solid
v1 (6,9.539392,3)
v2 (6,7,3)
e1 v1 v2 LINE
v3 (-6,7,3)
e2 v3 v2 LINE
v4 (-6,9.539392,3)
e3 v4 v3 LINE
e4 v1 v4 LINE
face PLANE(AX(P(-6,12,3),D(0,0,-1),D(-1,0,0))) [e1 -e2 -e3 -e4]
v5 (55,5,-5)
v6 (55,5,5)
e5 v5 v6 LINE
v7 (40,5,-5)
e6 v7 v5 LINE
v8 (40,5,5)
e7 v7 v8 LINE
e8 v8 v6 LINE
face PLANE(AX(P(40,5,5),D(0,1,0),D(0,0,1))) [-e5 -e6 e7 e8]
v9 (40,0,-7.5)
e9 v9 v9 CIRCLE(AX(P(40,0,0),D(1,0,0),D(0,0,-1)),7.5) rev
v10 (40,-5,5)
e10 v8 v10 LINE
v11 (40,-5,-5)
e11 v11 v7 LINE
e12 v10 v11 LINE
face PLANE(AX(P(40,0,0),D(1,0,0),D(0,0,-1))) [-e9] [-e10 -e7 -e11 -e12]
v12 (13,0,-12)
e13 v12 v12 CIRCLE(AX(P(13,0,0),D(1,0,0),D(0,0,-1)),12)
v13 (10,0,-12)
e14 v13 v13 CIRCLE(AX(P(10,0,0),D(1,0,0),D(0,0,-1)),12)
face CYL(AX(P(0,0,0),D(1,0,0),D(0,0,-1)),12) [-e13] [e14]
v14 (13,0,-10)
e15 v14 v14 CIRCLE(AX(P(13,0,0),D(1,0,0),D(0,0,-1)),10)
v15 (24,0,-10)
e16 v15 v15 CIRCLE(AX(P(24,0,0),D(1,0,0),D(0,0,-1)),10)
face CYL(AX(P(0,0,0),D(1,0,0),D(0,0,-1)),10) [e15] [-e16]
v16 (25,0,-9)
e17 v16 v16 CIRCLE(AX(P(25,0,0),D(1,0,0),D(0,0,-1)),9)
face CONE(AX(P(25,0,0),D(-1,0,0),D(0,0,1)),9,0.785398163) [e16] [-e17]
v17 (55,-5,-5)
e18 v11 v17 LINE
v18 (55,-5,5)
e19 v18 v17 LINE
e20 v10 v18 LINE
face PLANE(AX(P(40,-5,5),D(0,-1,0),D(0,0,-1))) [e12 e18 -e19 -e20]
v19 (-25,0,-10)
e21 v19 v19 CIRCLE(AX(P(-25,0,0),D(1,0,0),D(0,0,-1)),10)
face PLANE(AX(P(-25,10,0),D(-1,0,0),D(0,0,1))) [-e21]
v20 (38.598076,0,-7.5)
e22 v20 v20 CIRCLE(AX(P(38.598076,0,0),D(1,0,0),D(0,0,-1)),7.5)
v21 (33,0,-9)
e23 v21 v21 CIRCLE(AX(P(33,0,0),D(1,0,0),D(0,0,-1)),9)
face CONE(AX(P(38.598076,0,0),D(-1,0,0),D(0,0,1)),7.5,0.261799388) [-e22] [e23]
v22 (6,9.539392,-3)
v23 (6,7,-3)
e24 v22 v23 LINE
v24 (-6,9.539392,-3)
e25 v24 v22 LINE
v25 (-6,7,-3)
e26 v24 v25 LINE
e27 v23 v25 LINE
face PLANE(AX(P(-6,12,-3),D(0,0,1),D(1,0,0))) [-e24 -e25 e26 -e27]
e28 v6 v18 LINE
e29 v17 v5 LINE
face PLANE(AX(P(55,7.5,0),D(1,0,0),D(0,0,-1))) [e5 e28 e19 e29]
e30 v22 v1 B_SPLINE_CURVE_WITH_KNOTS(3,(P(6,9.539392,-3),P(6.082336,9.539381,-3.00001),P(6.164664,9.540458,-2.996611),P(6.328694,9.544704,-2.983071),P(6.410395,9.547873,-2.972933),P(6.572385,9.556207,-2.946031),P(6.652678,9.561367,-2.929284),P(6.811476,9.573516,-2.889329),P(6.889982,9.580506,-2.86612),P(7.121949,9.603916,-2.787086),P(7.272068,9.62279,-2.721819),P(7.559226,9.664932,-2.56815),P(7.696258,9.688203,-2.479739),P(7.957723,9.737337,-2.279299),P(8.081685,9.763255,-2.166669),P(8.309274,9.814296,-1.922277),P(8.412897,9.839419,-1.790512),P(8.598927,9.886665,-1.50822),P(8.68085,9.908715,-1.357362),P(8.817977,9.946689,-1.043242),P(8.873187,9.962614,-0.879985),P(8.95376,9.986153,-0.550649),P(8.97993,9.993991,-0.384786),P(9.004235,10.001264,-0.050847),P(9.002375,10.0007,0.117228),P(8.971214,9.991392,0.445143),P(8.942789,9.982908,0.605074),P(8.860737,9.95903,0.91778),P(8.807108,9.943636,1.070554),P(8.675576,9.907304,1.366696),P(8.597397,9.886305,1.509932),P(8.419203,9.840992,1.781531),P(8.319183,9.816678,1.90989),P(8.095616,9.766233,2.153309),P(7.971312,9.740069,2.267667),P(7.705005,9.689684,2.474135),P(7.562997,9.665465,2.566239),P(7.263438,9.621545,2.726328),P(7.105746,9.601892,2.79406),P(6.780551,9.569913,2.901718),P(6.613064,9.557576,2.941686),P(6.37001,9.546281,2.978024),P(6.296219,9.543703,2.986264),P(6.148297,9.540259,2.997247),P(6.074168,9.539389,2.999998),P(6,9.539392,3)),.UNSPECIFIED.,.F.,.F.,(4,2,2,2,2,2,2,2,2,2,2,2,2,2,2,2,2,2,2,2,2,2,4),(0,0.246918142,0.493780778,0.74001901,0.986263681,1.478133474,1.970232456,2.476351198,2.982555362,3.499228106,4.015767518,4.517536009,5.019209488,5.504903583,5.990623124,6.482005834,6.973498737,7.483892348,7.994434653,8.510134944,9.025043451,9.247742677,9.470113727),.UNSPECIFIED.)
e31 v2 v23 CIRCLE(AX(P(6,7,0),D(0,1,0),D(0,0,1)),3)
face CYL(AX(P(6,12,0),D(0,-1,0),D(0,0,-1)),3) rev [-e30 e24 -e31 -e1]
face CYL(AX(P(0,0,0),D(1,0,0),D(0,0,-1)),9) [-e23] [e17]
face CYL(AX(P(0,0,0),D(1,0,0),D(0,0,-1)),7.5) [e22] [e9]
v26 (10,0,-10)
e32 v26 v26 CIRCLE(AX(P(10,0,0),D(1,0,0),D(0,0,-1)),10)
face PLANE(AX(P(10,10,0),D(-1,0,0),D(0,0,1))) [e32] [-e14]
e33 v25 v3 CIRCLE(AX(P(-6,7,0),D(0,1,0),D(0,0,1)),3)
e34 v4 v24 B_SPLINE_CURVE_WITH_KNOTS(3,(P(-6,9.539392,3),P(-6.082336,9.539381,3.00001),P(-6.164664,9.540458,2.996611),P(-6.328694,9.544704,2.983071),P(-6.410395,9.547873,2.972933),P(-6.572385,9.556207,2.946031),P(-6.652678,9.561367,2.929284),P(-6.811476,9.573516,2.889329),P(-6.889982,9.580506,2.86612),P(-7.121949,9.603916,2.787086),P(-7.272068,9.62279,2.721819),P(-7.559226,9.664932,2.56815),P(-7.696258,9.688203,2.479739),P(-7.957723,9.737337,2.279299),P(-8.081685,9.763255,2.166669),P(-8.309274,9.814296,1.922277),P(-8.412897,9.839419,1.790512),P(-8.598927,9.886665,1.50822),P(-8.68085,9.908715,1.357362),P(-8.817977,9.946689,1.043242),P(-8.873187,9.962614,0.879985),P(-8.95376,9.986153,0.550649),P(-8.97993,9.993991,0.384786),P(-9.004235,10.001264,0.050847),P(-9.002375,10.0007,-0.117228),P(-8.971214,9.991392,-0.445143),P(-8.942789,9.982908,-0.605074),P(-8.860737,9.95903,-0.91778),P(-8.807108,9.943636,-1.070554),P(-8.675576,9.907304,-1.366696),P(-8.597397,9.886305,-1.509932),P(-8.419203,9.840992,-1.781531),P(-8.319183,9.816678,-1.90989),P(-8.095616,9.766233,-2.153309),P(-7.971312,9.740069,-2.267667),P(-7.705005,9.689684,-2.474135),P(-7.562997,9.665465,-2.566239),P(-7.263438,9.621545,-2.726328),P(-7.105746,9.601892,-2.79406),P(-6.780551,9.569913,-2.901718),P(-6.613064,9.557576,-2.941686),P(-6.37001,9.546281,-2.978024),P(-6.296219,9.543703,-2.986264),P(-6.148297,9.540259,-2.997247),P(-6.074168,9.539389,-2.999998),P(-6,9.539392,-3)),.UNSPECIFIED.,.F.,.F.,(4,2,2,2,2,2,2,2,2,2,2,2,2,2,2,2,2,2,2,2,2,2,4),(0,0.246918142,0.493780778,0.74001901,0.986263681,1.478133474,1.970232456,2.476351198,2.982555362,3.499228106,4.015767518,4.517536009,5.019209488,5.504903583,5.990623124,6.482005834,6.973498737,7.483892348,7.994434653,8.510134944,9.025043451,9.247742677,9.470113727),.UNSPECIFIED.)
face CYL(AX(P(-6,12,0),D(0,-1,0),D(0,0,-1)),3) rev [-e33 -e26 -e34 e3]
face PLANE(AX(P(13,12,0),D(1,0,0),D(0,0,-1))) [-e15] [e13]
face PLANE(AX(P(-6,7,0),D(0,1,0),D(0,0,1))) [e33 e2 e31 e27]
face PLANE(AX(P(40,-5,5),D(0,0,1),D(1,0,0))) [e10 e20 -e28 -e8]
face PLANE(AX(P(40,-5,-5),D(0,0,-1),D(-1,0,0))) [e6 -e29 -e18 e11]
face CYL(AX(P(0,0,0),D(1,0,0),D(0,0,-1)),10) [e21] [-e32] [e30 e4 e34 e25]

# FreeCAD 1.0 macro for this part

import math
import FreeCAD as App
import Part
import Sketcher
from FreeCAD import Vector
Q = App.Units.Quantity

doc = App.newDocument("Part")
params = doc.addObject("Spreadsheet::Sheet", "Params")
for row, (alias, value) in enumerate([
    ("sketch1_width", "35 mm"),
    ("sketch1_width2", "80 mm"),
    ("sketch1_width3", "8 mm"),
    ("sketch1_width4", "11 mm"),
    ("sketch1_width5", "3 mm"),
    ("revolution_angle", "360 deg"),
    ("sketch2_width", "10 mm"),
    ("sketch2_width2", "43.38 mm"),
    ("pocket1_length", "15 mm"),
    ("sketch3_radius", "3 mm"),
    ("sketch3_width", "12 mm"),
], start=1):
    params.set(f"A{row}", alias)
    params.set(f"B{row}", "=" + value)
    params.setAlias(f"B{row}", alias)

body = doc.addObject("PartDesign::Body", "Body")

# Sketch on XY plane
sketch1 = body.newObject("Sketcher::SketchObject", "Sketch")
sketch1.AttachmentSupport = (doc.getObject("XY_Plane"), [""])
sketch1.MapMode = "FlatFace"
sketch1.addGeometry([
    Part.LineSegment(Vector(10, 10, 0), Vector(-25, 10, 0)),  # 0
    Part.LineSegment(Vector(-25, 10, 0), Vector(-25, 0, 0)),  # 1
    Part.LineSegment(Vector(-25, 0, 0), Vector(55, 0, 0)),  # 2
    Part.LineSegment(Vector(55, 0, 0), Vector(55, 7.5, 0)),  # 3
    Part.LineSegment(Vector(55, 7.5, 0), Vector(38.6, 7.5, 0)),  # 4
    Part.LineSegment(Vector(38.6, 7.5, 0), Vector(33, 9, 0)),  # 5
    Part.LineSegment(Vector(33, 9, 0), Vector(25, 9, 0)),  # 6
    Part.LineSegment(Vector(25, 9, 0), Vector(24, 10, 0)),  # 7
    Part.LineSegment(Vector(24, 10, 0), Vector(13, 10, 0)),  # 8
    Part.LineSegment(Vector(13, 10, 0), Vector(13, 12, 0)),  # 9
    Part.LineSegment(Vector(13, 12, 0), Vector(10, 12, 0)),  # 10
    Part.LineSegment(Vector(10, 12, 0), Vector(10, 10, 0)),  # 11
], False)
sketch1.addConstraint([
    Sketcher.Constraint("Coincident", 0, 2, 1, 1),
    Sketcher.Constraint("Coincident", 1, 2, 2, 1),
    Sketcher.Constraint("Coincident", 2, 2, 3, 1),
    Sketcher.Constraint("Coincident", 3, 2, 4, 1),
    Sketcher.Constraint("Coincident", 4, 2, 5, 1),
    Sketcher.Constraint("Coincident", 5, 2, 6, 1),
    Sketcher.Constraint("Coincident", 6, 2, 7, 1),
    Sketcher.Constraint("Coincident", 7, 2, 8, 1),
    Sketcher.Constraint("Coincident", 8, 2, 9, 1),
    Sketcher.Constraint("Coincident", 9, 2, 10, 1),
    Sketcher.Constraint("Coincident", 10, 2, 11, 1),
    Sketcher.Constraint("Coincident", 11, 2, 0, 1),
    Sketcher.Constraint("Horizontal", 0),
    Sketcher.Constraint("Vertical", 1),
    Sketcher.Constraint("Horizontal", 2),
    Sketcher.Constraint("Vertical", 3),
    Sketcher.Constraint("Horizontal", 4),
    Sketcher.Constraint("Horizontal", 6),
    Sketcher.Constraint("Horizontal", 8),
    Sketcher.Constraint("Vertical", 9),
    Sketcher.Constraint("Horizontal", 10),
    Sketcher.Constraint("Vertical", 11),
    Sketcher.Constraint("PointOnObject", 1, 2, -1),
    Sketcher.Constraint("Horizontal", 0, 2, 7, 2),
    Sketcher.Constraint("DistanceX", 0, 2, 0, 1, 35.0),
    Sketcher.Constraint("DistanceX", 2, 1, 2, 2, 80.0),
    Sketcher.Constraint("DistanceX", 6, 2, 6, 1, 8.0),
    Sketcher.Constraint("DistanceX", 8, 2, 8, 1, 11.0),
    Sketcher.Constraint("DistanceX", 10, 2, 10, 1, 3.0),
    Sketcher.Constraint("DistanceY", 1, 2, 1, 1, 10.0),
    Sketcher.Constraint("DistanceY", 9, 1, 9, 2, 2.0),
    Sketcher.Constraint("Angle", 5, Q("165 deg")),
    Sketcher.Constraint("Angle", 7, Q("135 deg")),
    Sketcher.Constraint("DistanceY", 3, 1, 3, 2, 7.5),
    Sketcher.Constraint("DistanceX", 0, 2, -1, 1, 25.0),
    Sketcher.Constraint("DistanceX", -1, 1, 5, 2, 33.0),
])
sketch1.setExpression("Constraints[24]", "Params.sketch1_width")
sketch1.setExpression("Constraints[25]", "Params.sketch1_width2")
sketch1.setExpression("Constraints[26]", "Params.sketch1_width3")
sketch1.setExpression("Constraints[27]", "Params.sketch1_width4")
sketch1.setExpression("Constraints[28]", "Params.sketch1_width5")
revolution = body.newObject("PartDesign::Revolution", "Revolution")
revolution.Profile = sketch1
revolution.ReferenceAxis = (sketch1, ["H_Axis"])
revolution.setExpression("Angle", "Params.revolution_angle")

# Sketch on YZ plane
sketch2 = body.newObject("Sketcher::SketchObject", "Sketch001")
sketch2.AttachmentSupport = (doc.getObject("YZ_Plane"), [""])
sketch2.MapMode = "FlatFace"
sketch2.AttachmentOffset = App.Placement(Vector(0, 0, 55), App.Rotation())
sketch2.addGeometry([
    Part.LineSegment(Vector(22, 22, 0), Vector(-22, 22, 0)),  # 0
    Part.LineSegment(Vector(-22, 22, 0), Vector(-22, -22, 0)),  # 1
    Part.LineSegment(Vector(-22, -22, 0), Vector(22, -22, 0)),  # 2
    Part.LineSegment(Vector(22, -22, 0), Vector(22, 22, 0)),  # 3
    Part.LineSegment(Vector(-5, -5, 0), Vector(-5, 5, 0)),  # 4
    Part.LineSegment(Vector(-5, 5, 0), Vector(5, 5, 0)),  # 5
    Part.LineSegment(Vector(5, 5, 0), Vector(5, -5, 0)),  # 6
    Part.LineSegment(Vector(5, -5, 0), Vector(-5, -5, 0)),  # 7
], False)
sketch2.addConstraint([
    Sketcher.Constraint("Coincident", 0, 2, 1, 1),
    Sketcher.Constraint("Coincident", 1, 2, 2, 1),
    Sketcher.Constraint("Coincident", 2, 2, 3, 1),
    Sketcher.Constraint("Coincident", 3, 2, 0, 1),
    Sketcher.Constraint("Coincident", 4, 2, 5, 1),
    Sketcher.Constraint("Coincident", 5, 2, 6, 1),
    Sketcher.Constraint("Coincident", 6, 2, 7, 1),
    Sketcher.Constraint("Coincident", 7, 2, 4, 1),
    Sketcher.Constraint("Horizontal", 0),
    Sketcher.Constraint("Vertical", 1),
    Sketcher.Constraint("Horizontal", 2),
    Sketcher.Constraint("Vertical", 3),
    Sketcher.Constraint("Vertical", 4),
    Sketcher.Constraint("Horizontal", 5),
    Sketcher.Constraint("Vertical", 6),
    Sketcher.Constraint("Horizontal", 7),
    Sketcher.Constraint("Symmetric", 0, 2, 2, 2, -1, 1),
    Sketcher.Constraint("Symmetric", 4, 2, 6, 2, -1, 1),
    Sketcher.Constraint("Equal", 2, 1),
    Sketcher.Constraint("Equal", 7, 4),
    Sketcher.Constraint("DistanceX", 5, 1, 5, 2, 10.0),
    Sketcher.Constraint("DistanceX", 0, 2, 0, 1, 43.38),
])
sketch2.setExpression("Constraints[20]", "Params.sketch2_width")
sketch2.setExpression("Constraints[21]", "Params.sketch2_width2")
pocket1 = body.newObject("PartDesign::Pocket", "Pocket")
pocket1.Profile = sketch2
pocket1.setExpression("Length", "Params.pocket1_length")

# Sketch on XZ plane
sketch3 = body.newObject("Sketcher::SketchObject", "Sketch002")
sketch3.AttachmentSupport = (doc.getObject("XZ_Plane"), [""])
sketch3.MapMode = "FlatFace"
sketch3.AttachmentOffset = App.Placement(Vector(0, 0, -7), App.Rotation())
sketch3.addGeometry([
    Part.LineSegment(Vector(6, -3, 0), Vector(-6, -3, 0)),
    Part.ArcOfCircle(Part.Circle(Vector(-6, 0, 0), Vector(0, 0, 1), 3), math.radians(90), math.radians(270)),
    Part.LineSegment(Vector(-6, 3, 0), Vector(6, 3, 0)),
    Part.ArcOfCircle(Part.Circle(Vector(6, 0, 0), Vector(0, 0, 1), 3), math.radians(-90), math.radians(90)),
], False)
sketch3.addConstraint([
    Sketcher.Constraint("Tangent", 0, 2, 1, 2),
    Sketcher.Constraint("Tangent", 1, 1, 2, 1),
    Sketcher.Constraint("Tangent", 2, 2, 3, 2),
    Sketcher.Constraint("Tangent", 3, 1, 0, 1),
    Sketcher.Constraint("Horizontal", 0),
    Sketcher.Constraint("Horizontal", 2),
    Sketcher.Constraint("Symmetric", 1, 3, 3, 3, -1, 1),
    Sketcher.Constraint("Radius", 1, 3.0),
    Sketcher.Constraint("DistanceX", 0, 2, 0, 1, 12.0),
])
sketch3.setExpression("Constraints[7]", "Params.sketch3_radius")
sketch3.setExpression("Constraints[8]", "Params.sketch3_width")
pocket2 = body.newObject("PartDesign::Pocket", "Pocket001")
pocket2.Profile = sketch3
pocket2.Type = "ThroughAll"

doc.recompute()
